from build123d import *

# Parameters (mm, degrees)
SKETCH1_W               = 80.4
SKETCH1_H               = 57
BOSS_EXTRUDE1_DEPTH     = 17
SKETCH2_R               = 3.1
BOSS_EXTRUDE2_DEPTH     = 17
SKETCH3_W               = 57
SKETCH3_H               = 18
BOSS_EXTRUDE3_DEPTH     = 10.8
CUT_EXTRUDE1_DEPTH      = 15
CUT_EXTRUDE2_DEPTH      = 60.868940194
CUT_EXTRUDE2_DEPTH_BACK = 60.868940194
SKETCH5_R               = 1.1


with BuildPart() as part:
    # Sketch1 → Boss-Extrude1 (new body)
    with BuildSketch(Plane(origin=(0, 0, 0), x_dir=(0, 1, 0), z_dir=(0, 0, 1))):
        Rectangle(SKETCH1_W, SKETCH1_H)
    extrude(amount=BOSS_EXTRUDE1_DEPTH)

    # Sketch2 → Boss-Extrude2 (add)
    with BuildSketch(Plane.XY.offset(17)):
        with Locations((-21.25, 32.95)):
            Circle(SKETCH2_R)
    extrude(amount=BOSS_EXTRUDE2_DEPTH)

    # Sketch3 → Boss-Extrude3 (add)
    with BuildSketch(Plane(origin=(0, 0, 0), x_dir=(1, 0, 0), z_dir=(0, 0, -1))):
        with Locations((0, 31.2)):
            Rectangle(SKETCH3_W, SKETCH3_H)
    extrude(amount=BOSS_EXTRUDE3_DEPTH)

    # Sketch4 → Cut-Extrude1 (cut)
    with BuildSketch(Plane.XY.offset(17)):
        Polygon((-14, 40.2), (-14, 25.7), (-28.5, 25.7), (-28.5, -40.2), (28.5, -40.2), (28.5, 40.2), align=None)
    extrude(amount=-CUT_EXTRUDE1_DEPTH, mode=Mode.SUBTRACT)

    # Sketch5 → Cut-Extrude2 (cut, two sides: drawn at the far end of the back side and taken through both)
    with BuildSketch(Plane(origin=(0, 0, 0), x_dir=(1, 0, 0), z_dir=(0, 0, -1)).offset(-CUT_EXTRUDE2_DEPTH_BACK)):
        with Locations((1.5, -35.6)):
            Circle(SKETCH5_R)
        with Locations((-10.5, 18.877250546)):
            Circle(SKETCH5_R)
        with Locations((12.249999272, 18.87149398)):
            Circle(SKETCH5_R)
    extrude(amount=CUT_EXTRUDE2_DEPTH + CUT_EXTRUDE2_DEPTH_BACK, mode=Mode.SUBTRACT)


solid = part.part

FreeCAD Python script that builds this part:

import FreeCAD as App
import Part
import Sketcher

V = App.Vector
Q = App.Units.Quantity

doc = App.newDocument("Part")
body = doc.addObject("PartDesign::Body", "Body")

# Sketch on XY plane
sketch1 = doc.addObject("Sketcher::SketchObject", "Sketch")
body.addObject(sketch1)
sketch1.AttachmentSupport = (doc.XY_Plane, [""])
sketch1.MapMode = "FlatFace"
sketch1.addGeometry(Part.LineSegment(V(-28.5, -40.2, 0), V(28.5, -40.2, 0)), False)
sketch1.addGeometry(Part.LineSegment(V(28.5, -40.2, 0), V(28.5, 40.2, 0)), False)
sketch1.addGeometry(Part.LineSegment(V(28.5, 40.2, 0), V(-28.5, 40.2, 0)), False)
sketch1.addGeometry(Part.LineSegment(V(-28.5, 40.2, 0), V(-28.5, -40.2, 0)), False)
sketch1.addConstraint(Sketcher.Constraint("Coincident", 0, 2, 1, 1))
sketch1.addConstraint(Sketcher.Constraint("Coincident", 1, 2, 2, 1))
sketch1.addConstraint(Sketcher.Constraint("Coincident", 2, 2, 3, 1))
sketch1.addConstraint(Sketcher.Constraint("Coincident", 3, 2, 0, 1))
sketch1.addConstraint(Sketcher.Constraint("Horizontal", 0))
sketch1.addConstraint(Sketcher.Constraint("Vertical", 1))
sketch1.addConstraint(Sketcher.Constraint("Horizontal", 2))
sketch1.addConstraint(Sketcher.Constraint("Vertical", 3))
sketch1.addConstraint(Sketcher.Constraint("Symmetric", 0, 2, 2, 2, -1, 1))
sketch1.addConstraint(Sketcher.Constraint("DistanceX", 0, 1, 0, 2, Q("57 mm")))
sketch1.addConstraint(Sketcher.Constraint("DistanceY", 1, 1, 1, 2, Q("80.4 mm")))
pad1 = doc.addObject("PartDesign::Pad", "Pad")
body.addObject(pad1)
pad1.Profile = sketch1
pad1.Length = 17

# Sketch on XY plane
sketch2 = doc.addObject("Sketcher::SketchObject", "Sketch001")
body.addObject(sketch2)
sketch2.AttachmentSupport = (doc.XY_Plane, [""])
sketch2.MapMode = "FlatFace"
sketch2.AttachmentOffset = App.Placement(V(0, 0, 17), App.Rotation())
sketch2.addGeometry(Part.Circle(V(-21.25, 32.95, 0), V(0, 0, 1), 3.1), False)
sketch2.addConstraint(Sketcher.Constraint("Diameter", 0, Q("6.2 mm")))
sketch2.addConstraint(Sketcher.Constraint("DistanceX", 0, 3, -1, 1, Q("21.25 mm")))
sketch2.addConstraint(Sketcher.Constraint("DistanceY", -1, 1, 0, 3, Q("32.95 mm")))
pad2 = doc.addObject("PartDesign::Pad", "Pad001")
body.addObject(pad2)
pad2.Profile = sketch2
pad2.Length = 17

# Sketch on XY plane
sketch3 = doc.addObject("Sketcher::SketchObject", "Sketch002")
body.addObject(sketch3)
sketch3.AttachmentSupport = (doc.XY_Plane, [""])
sketch3.MapMode = "FlatFace"
sketch3.addGeometry(Part.LineSegment(V(-28.5, -40.2, 0), V(-28.5, -22.2, 0)), False)
sketch3.addGeometry(Part.LineSegment(V(-28.5, -22.2, 0), V(28.5, -22.2, 0)), False)
sketch3.addGeometry(Part.LineSegment(V(28.5, -22.2, 0), V(28.5, -40.2, 0)), False)
sketch3.addGeometry(Part.LineSegment(V(28.5, -40.2, 0), V(-28.5, -40.2, 0)), False)
sketch3.addConstraint(Sketcher.Constraint("Coincident", 0, 2, 1, 1))
sketch3.addConstraint(Sketcher.Constraint("Coincident", 1, 2, 2, 1))
sketch3.addConstraint(Sketcher.Constraint("Coincident", 2, 2, 3, 1))
sketch3.addConstraint(Sketcher.Constraint("Coincident", 3, 2, 0, 1))
sketch3.addConstraint(Sketcher.Constraint("Vertical", 0))
sketch3.addConstraint(Sketcher.Constraint("Horizontal", 1))
sketch3.addConstraint(Sketcher.Constraint("Vertical", 2))
sketch3.addConstraint(Sketcher.Constraint("Horizontal", 3))
sketch3.addConstraint(Sketcher.Constraint("DistanceX", 1, 1, 1, 2, Q("57 mm")))
sketch3.addConstraint(Sketcher.Constraint("DistanceY", 0, 1, 0, 2, Q("18 mm")))
sketch3.addConstraint(Sketcher.Constraint("DistanceX", 0, 2, -1, 1, Q("28.5 mm")))
sketch3.addConstraint(Sketcher.Constraint("DistanceY", 0, 2, -1, 1, Q("22.2 mm")))
pad3 = doc.addObject("PartDesign::Pad", "Pad002")
body.addObject(pad3)
pad3.Profile = sketch3
pad3.Length = 10.8
pad3.Reversed = True

# Sketch on XY plane
sketch4 = doc.addObject("Sketcher::SketchObject", "Sketch003")
body.addObject(sketch4)
sketch4.AttachmentSupport = (doc.XY_Plane, [""])
sketch4.MapMode = "FlatFace"
sketch4.AttachmentOffset = App.Placement(V(0, 0, 17), App.Rotation())
sketch4.addGeometry(Part.LineSegment(V(-14, 40.2, 0), V(-14, 25.7, 0)), False)
sketch4.addGeometry(Part.LineSegment(V(-14, 25.7, 0), V(-28.5, 25.7, 0)), False)
sketch4.addGeometry(Part.LineSegment(V(-28.5, 25.7, 0), V(-28.5, -40.2, 0)), False)
sketch4.addGeometry(Part.LineSegment(V(-28.5, -40.2, 0), V(28.5, -40.2, 0)), False)
sketch4.addGeometry(Part.LineSegment(V(28.5, -40.2, 0), V(28.5, 40.2, 0)), False)
sketch4.addGeometry(Part.LineSegment(V(28.5, 40.2, 0), V(-14, 40.2, 0)), False)
sketch4.addConstraint(Sketcher.Constraint("Coincident", 0, 2, 1, 1))
sketch4.addConstraint(Sketcher.Constraint("Coincident", 1, 2, 2, 1))
sketch4.addConstraint(Sketcher.Constraint("Coincident", 2, 2, 3, 1))
sketch4.addConstraint(Sketcher.Constraint("Coincident", 3, 2, 4, 1))
sketch4.addConstraint(Sketcher.Constraint("Coincident", 4, 2, 5, 1))
sketch4.addConstraint(Sketcher.Constraint("Coincident", 5, 2, 0, 1))
sketch4.addConstraint(Sketcher.Constraint("Vertical", 0))
sketch4.addConstraint(Sketcher.Constraint("Horizontal", 1))
sketch4.addConstraint(Sketcher.Constraint("Vertical", 2))
sketch4.addConstraint(Sketcher.Constraint("Horizontal", 3))
sketch4.addConstraint(Sketcher.Constraint("Vertical", 4))
sketch4.addConstraint(Sketcher.Constraint("Horizontal", 5))
sketch4.addConstraint(Sketcher.Constraint("Symmetric", 2, 2, 4, 2, -1, 1))
sketch4.addConstraint(Sketcher.Constraint("Equal", 1, 0))
sketch4.addConstraint(Sketcher.Constraint("DistanceX", 3, 1, 3, 2, Q("57 mm")))
sketch4.addConstraint(Sketcher.Constraint("DistanceX", 1, 2, 1, 1, Q("14.5 mm")))
sketch4.addConstraint(Sketcher.Constraint("DistanceY", 2, 2, 2, 1, Q("65.9 mm")))
pocket1 = doc.addObject("PartDesign::Pocket", "Pocket")
body.addObject(pocket1)
pocket1.Profile = sketch4
pocket1.Length = 15

# Sketch on XY plane
sketch5 = doc.addObject("Sketcher::SketchObject", "Sketch004")
body.addObject(sketch5)
sketch5.AttachmentSupport = (doc.XY_Plane, [""])
sketch5.MapMode = "FlatFace"
sketch5.addGeometry(Part.Circle(V(1.5, 35.6, 0), V(0, 0, 1), 1.1), False)
sketch5.addGeometry(Part.Circle(V(-10.5, -18.877251, 0), V(0, 0, 1), 1.1), False)
sketch5.addGeometry(Part.Circle(V(12.249999, -18.871494, 0), V(0, 0, 1), 1.1), False)
sketch5.addConstraint(Sketcher.Constraint("Equal", 0, 1))
sketch5.addConstraint(Sketcher.Constraint("Equal", 1, 2))
sketch5.addConstraint(Sketcher.Constraint("Diameter", 0, Q("2.2 mm")))
sketch5.addConstraint(Sketcher.Constraint("DistanceX", 1, 3, 0, 3, Q("12 mm")))
sketch5.addConstraint(Sketcher.Constraint("DistanceX", -1, 1, 0, 3, Q("1.5 mm")))
sketch5.addConstraint(Sketcher.Constraint("DistanceY", -1, 1, 0, 3, Q("35.6 mm")))
sketch5.addConstraint(Sketcher.Constraint("DistanceX", -1, 1, 2, 3, Q("12.249999 mm")))
sketch5.addConstraint(Sketcher.Constraint("DistanceY", 1, 3, -1, 1, Q("18.877251 mm")))
sketch5.addConstraint(Sketcher.Constraint("DistanceY", 2, 3, -1, 1, Q("18.871494 mm")))
pocket2 = doc.addObject("PartDesign::Pocket", "Pocket001")
body.addObject(pocket2)
pocket2.Profile = sketch5
pocket2.Type = "ThroughAll"
pocket2.Midplane = True

doc.recompute()
